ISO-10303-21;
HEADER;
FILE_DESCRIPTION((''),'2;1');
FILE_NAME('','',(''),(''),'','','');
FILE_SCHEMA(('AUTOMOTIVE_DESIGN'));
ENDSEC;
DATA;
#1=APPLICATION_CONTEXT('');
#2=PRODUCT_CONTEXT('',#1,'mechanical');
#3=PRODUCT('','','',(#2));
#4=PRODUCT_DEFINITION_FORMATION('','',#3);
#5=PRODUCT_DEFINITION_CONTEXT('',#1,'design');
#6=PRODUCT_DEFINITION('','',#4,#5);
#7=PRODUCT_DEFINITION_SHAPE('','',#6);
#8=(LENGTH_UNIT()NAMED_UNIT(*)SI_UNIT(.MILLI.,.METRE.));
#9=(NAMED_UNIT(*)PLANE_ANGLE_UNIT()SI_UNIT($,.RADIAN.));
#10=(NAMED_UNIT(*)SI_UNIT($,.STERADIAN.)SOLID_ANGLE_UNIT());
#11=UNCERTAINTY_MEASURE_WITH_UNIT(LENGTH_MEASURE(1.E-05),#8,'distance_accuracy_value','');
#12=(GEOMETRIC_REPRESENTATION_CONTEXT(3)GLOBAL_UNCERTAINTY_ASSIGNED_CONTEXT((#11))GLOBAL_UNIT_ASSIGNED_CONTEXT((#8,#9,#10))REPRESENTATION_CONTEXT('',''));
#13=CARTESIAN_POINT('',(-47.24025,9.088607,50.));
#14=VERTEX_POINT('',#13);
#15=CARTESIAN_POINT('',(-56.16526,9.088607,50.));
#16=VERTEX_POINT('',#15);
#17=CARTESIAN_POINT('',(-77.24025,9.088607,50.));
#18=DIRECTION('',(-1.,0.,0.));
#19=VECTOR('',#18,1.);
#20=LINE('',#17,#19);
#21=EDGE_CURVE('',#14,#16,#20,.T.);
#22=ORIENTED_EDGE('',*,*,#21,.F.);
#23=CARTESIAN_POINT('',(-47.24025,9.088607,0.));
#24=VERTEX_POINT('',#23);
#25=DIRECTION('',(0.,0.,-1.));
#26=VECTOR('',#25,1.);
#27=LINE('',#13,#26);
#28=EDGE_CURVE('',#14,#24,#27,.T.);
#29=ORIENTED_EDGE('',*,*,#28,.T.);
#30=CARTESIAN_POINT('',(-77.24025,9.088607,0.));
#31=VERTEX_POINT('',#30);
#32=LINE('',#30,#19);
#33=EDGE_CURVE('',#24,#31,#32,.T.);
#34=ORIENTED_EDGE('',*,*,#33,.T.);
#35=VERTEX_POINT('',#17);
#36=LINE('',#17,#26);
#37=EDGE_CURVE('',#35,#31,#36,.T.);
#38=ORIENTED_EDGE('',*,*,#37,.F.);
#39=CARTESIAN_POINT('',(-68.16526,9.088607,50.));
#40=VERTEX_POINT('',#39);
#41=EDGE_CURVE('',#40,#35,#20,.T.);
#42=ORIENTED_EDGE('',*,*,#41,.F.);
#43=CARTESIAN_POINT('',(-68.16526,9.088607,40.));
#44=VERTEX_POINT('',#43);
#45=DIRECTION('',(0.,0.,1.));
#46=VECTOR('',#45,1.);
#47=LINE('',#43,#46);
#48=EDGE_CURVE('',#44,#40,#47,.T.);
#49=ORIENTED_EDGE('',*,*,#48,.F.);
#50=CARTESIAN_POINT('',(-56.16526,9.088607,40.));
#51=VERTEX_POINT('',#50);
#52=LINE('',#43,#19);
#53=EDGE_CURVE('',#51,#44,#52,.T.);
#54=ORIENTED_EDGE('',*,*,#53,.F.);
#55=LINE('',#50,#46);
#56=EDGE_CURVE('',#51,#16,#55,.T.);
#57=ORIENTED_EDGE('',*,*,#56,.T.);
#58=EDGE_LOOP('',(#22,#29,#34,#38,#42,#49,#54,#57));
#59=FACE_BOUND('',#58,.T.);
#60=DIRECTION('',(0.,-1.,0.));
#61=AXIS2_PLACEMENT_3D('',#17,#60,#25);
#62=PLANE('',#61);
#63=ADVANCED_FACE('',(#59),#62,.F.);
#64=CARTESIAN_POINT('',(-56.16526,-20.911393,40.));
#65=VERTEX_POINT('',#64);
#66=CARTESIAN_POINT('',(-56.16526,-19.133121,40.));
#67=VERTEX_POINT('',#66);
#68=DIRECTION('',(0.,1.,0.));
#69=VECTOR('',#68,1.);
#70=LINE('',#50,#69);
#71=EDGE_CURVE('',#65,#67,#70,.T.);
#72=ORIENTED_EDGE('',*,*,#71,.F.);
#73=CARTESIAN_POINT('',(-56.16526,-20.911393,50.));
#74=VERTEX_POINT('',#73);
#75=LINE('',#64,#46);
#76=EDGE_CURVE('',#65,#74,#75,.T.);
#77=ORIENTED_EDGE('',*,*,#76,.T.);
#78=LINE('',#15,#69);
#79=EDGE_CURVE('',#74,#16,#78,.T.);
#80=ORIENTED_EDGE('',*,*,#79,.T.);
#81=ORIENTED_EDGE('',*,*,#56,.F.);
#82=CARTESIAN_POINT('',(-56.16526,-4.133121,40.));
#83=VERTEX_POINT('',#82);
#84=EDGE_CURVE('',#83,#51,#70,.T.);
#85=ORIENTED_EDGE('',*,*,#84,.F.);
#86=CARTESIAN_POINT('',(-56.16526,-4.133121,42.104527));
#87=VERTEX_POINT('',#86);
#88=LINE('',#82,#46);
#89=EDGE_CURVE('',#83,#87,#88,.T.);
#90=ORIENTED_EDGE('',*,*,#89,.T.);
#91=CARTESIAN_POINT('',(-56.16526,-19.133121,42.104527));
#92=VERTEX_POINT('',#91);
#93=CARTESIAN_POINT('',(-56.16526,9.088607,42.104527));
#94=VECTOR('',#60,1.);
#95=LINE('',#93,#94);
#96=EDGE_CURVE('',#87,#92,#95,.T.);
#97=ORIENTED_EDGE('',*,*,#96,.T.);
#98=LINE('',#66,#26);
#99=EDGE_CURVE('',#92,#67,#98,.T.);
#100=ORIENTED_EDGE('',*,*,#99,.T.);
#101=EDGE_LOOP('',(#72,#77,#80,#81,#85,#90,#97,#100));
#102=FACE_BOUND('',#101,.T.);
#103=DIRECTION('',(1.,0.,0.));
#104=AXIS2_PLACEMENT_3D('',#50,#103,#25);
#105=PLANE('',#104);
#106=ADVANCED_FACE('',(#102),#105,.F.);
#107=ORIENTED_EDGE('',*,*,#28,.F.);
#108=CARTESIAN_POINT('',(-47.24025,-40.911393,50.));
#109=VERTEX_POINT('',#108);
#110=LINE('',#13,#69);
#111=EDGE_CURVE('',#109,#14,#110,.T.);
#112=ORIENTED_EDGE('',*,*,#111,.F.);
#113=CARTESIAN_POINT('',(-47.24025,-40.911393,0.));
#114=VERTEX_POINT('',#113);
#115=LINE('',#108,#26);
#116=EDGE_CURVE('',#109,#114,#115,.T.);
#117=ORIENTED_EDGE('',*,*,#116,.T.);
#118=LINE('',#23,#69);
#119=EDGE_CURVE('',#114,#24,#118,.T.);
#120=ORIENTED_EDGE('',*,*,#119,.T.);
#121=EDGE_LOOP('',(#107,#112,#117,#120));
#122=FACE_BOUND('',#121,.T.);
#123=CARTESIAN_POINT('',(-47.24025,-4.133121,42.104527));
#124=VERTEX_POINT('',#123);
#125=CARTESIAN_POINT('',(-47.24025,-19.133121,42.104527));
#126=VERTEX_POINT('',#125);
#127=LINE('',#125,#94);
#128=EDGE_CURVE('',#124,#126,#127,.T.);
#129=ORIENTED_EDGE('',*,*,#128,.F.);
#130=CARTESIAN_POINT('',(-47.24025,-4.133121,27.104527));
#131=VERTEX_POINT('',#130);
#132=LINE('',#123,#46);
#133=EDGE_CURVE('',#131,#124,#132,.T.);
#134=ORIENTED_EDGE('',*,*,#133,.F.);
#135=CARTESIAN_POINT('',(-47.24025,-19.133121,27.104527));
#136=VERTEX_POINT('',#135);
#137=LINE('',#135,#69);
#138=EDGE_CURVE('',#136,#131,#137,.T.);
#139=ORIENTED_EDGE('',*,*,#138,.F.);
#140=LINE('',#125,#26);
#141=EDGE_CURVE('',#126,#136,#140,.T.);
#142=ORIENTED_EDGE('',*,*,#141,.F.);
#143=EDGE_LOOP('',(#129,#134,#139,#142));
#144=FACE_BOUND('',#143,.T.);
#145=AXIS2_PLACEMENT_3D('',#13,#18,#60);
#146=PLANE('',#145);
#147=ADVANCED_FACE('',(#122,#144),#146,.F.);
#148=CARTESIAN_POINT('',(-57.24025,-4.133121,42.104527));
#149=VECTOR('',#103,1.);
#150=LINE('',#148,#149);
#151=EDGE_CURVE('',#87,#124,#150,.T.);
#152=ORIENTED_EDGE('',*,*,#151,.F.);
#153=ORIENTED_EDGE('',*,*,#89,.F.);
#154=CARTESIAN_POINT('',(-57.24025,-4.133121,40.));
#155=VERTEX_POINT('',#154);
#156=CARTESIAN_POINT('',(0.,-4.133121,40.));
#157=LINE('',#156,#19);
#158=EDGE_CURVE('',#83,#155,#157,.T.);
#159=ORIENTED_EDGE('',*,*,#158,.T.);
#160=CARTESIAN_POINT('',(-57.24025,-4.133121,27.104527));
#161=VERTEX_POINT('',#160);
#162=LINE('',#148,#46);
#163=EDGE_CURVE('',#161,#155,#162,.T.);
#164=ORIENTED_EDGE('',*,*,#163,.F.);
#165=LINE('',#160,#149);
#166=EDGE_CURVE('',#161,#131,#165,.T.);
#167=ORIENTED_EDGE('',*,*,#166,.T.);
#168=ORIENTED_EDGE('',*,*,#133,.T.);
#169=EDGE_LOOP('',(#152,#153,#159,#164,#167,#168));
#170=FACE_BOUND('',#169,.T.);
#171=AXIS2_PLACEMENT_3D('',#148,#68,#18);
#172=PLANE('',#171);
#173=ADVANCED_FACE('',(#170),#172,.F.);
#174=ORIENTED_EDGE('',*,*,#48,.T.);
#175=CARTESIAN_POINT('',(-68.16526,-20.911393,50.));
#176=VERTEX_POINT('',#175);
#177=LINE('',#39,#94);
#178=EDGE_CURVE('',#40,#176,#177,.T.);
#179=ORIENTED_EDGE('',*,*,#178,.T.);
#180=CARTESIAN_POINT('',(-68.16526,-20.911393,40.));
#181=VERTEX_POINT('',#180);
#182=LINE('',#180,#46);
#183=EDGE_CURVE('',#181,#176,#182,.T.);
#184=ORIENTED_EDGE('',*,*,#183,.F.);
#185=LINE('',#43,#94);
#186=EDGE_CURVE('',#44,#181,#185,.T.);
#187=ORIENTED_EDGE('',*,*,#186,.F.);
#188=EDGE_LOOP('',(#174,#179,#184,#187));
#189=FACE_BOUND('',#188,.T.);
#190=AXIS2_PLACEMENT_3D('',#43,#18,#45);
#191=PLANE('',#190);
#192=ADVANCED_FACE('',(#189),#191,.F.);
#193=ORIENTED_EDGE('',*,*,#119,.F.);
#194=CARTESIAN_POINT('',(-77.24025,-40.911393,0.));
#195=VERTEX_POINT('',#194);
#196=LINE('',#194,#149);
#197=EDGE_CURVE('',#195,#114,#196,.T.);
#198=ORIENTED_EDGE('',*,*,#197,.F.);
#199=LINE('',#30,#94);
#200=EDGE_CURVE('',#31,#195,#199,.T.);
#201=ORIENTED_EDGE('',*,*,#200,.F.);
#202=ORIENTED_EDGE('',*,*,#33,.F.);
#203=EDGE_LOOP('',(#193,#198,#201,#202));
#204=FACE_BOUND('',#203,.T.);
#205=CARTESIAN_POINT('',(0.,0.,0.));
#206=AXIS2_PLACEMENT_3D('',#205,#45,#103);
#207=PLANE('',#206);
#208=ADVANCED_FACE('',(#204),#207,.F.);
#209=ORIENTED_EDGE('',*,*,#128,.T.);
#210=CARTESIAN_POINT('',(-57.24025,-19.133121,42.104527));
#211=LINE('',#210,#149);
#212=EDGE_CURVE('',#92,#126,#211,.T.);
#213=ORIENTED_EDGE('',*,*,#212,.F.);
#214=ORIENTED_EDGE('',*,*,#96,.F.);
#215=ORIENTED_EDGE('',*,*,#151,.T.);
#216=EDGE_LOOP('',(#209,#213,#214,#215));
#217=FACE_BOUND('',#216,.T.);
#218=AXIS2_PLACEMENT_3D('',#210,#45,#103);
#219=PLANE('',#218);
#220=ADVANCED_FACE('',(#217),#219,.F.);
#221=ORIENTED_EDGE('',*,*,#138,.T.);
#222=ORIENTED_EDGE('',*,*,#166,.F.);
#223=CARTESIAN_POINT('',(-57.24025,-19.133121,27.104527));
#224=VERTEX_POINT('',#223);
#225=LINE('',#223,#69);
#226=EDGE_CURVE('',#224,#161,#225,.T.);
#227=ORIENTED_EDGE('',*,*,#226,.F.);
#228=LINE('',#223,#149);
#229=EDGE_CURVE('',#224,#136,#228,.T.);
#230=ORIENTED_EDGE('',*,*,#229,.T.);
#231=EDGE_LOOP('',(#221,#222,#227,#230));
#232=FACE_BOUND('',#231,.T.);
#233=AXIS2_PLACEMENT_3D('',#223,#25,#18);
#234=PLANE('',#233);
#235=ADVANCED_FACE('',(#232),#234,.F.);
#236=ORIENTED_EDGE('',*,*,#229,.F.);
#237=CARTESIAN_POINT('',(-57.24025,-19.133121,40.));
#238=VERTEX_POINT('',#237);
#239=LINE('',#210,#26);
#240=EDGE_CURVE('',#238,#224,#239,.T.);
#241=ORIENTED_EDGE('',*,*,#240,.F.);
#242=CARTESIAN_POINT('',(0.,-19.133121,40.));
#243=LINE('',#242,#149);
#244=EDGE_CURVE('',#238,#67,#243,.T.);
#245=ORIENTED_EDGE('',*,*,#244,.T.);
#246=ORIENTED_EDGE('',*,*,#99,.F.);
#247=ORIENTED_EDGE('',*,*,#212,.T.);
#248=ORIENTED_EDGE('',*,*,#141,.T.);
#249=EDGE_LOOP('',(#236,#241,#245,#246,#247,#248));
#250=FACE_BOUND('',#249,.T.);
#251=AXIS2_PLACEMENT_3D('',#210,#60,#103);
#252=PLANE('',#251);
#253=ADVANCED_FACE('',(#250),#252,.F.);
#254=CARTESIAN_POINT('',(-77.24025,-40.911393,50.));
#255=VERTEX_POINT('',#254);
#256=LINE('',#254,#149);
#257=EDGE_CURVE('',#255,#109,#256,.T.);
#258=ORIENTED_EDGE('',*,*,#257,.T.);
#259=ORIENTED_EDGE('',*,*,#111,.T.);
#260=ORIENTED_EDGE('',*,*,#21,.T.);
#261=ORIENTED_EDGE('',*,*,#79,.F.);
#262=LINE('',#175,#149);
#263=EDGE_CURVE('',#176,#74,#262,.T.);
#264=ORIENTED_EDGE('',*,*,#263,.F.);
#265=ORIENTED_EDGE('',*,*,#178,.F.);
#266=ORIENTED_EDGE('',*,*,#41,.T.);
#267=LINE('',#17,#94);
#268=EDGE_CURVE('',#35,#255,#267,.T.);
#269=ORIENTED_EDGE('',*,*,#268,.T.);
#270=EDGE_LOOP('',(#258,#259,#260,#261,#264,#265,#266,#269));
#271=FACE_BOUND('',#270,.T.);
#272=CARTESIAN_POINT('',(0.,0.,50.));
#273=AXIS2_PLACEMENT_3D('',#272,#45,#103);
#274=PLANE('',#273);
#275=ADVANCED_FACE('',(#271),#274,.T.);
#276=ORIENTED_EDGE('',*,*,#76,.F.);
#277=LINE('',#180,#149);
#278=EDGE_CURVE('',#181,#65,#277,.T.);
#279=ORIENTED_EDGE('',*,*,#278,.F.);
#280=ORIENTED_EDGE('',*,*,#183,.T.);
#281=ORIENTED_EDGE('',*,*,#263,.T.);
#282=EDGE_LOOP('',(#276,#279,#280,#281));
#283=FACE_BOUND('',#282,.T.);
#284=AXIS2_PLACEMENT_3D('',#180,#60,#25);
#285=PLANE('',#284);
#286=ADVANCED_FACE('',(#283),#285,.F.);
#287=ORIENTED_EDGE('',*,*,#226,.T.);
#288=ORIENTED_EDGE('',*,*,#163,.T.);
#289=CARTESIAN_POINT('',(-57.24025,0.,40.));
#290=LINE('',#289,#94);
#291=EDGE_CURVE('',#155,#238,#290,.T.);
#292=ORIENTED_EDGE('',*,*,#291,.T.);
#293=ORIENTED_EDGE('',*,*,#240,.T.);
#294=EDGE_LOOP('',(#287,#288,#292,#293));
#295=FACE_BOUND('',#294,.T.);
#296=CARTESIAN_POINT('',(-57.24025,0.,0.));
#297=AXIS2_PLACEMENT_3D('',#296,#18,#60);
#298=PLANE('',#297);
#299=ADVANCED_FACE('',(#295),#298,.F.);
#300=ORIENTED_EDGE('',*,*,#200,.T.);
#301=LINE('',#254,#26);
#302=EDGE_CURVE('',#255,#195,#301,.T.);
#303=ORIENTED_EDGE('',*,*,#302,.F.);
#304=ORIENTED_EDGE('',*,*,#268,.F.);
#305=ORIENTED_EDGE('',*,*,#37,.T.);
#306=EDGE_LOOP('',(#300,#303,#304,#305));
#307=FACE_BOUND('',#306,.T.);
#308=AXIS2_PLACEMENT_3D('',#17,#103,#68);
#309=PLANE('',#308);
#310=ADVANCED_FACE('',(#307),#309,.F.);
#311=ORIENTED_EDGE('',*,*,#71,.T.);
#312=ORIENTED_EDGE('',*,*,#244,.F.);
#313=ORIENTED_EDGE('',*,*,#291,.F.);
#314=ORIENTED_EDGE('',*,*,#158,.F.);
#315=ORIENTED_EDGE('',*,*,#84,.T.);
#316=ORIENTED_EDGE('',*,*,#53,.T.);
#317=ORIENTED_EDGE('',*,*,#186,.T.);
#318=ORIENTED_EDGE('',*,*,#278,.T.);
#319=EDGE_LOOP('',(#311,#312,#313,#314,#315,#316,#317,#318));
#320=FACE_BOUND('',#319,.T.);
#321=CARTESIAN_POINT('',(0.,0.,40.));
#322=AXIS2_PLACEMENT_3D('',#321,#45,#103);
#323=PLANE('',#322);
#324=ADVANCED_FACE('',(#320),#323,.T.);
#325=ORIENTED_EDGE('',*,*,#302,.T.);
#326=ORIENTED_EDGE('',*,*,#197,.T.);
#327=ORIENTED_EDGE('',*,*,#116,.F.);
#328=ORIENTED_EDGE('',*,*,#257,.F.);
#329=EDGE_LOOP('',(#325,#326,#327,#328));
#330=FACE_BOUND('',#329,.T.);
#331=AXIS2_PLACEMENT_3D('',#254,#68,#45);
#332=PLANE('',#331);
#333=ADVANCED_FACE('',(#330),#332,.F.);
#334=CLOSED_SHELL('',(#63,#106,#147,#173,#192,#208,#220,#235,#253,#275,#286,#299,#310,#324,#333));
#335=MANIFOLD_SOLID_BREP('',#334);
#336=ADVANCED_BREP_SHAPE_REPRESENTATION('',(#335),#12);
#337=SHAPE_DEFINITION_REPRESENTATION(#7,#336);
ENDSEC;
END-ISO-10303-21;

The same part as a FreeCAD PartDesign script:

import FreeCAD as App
import Part
import Sketcher
Q = App.Units.Quantity

doc = App.newDocument("Part")
params = doc.addObject("Spreadsheet::Sheet", "Params")
for row, (alias, value) in enumerate([
    ("sketch1_width", "30 mm"),
    ("sketch1_height", "50 mm"),
    ("pad1_length", "50 mm"),
    ("sketch2_width", "12 mm"),
    ("sketch2_height", "30 mm"),
    ("pocket1_length", "10 mm"),
    ("sketch3_width", "15 mm"),
    ("pocket2_length", "10 mm"),
], start=1):
    params.set(f"A{row}", alias)
    params.set(f"B{row}", "=" + value)
    params.setAlias(f"B{row}", alias)

body = doc.addObject("PartDesign::Body", "Body")

# Sketch on XY plane
sketch1 = body.newObject("Sketcher::SketchObject", "Sketch")
sketch1.AttachmentSupport = (doc.getObject("XY_Plane"), [""])
sketch1.MapMode = "FlatFace"
sketch1.addGeometry([
    Part.LineSegment(App.Vector(-77.24025, 9.088607, 0), App.Vector(-77.24025, -40.911393, 0)),
    Part.LineSegment(App.Vector(-77.24025, -40.911393, 0), App.Vector(-47.24025, -40.911393, 0)),
    Part.LineSegment(App.Vector(-47.24025, -40.911393, 0), App.Vector(-47.24025, 9.088607, 0)),
    Part.LineSegment(App.Vector(-47.24025, 9.088607, 0), App.Vector(-77.24025, 9.088607, 0)),
], False)
sketch1.addConstraint([
    Sketcher.Constraint("Coincident", 0, 2, 1, 1),
    Sketcher.Constraint("Coincident", 1, 2, 2, 1),
    Sketcher.Constraint("Coincident", 2, 2, 3, 1),
    Sketcher.Constraint("Coincident", 3, 2, 0, 1),
    Sketcher.Constraint("Vertical", 0),
    Sketcher.Constraint("Horizontal", 1),
    Sketcher.Constraint("Vertical", 2),
    Sketcher.Constraint("Horizontal", 3),
    Sketcher.Constraint("DistanceX", 1, 1, 1, 2, Q("30 mm")),
    Sketcher.Constraint("DistanceY", 0, 2, 0, 1, Q("50 mm")),
    Sketcher.Constraint("DistanceX", 0, 2, -1, 1, Q("77.24025 mm")),
    Sketcher.Constraint("DistanceY", 0, 2, -1, 1, Q("40.911393 mm")),
])
sketch1.setExpression("Constraints[8]", "Params.sketch1_width")
sketch1.setExpression("Constraints[9]", "Params.sketch1_height")
pad1 = body.newObject("PartDesign::Pad", "Pad")
pad1.Profile = sketch1
pad1.setExpression("Length", "Params.pad1_length")

# Sketch on XY plane
sketch2 = body.newObject("Sketcher::SketchObject", "Sketch001")
sketch2.AttachmentSupport = (doc.getObject("XY_Plane"), [""])
sketch2.MapMode = "FlatFace"
sketch2.AttachmentOffset = App.Placement(App.Vector(0, 0, 50), App.Rotation())
sketch2.addGeometry([
    Part.LineSegment(App.Vector(-68.16526, 9.088607, 0), App.Vector(-68.16526, -20.911393, 0)),
    Part.LineSegment(App.Vector(-68.16526, -20.911393, 0), App.Vector(-56.16526, -20.911393, 0)),
    Part.LineSegment(App.Vector(-56.16526, -20.911393, 0), App.Vector(-56.16526, 9.088607, 0)),
    Part.LineSegment(App.Vector(-56.16526, 9.088607, 0), App.Vector(-68.16526, 9.088607, 0)),
], False)
sketch2.addConstraint([
    Sketcher.Constraint("Coincident", 0, 2, 1, 1),
    Sketcher.Constraint("Coincident", 1, 2, 2, 1),
    Sketcher.Constraint("Coincident", 2, 2, 3, 1),
    Sketcher.Constraint("Coincident", 3, 2, 0, 1),
    Sketcher.Constraint("Vertical", 0),
    Sketcher.Constraint("Horizontal", 1),
    Sketcher.Constraint("Vertical", 2),
    Sketcher.Constraint("Horizontal", 3),
    Sketcher.Constraint("DistanceX", 1, 1, 1, 2, Q("12 mm")),
    Sketcher.Constraint("DistanceY", 0, 2, 0, 1, Q("30 mm")),
    Sketcher.Constraint("DistanceX", 0, 2, -1, 1, Q("68.16526 mm")),
    Sketcher.Constraint("DistanceY", 0, 2, -1, 1, Q("20.911393 mm")),
])
sketch2.setExpression("Constraints[8]", "Params.sketch2_width")
sketch2.setExpression("Constraints[9]", "Params.sketch2_height")
pocket1 = body.newObject("PartDesign::Pocket", "Pocket")
pocket1.Profile = sketch2
pocket1.setExpression("Length", "Params.pocket1_length")

# Sketch on YZ plane
sketch3 = body.newObject("Sketcher::SketchObject", "Sketch002")
sketch3.AttachmentSupport = (doc.getObject("YZ_Plane"), [""])
sketch3.MapMode = "FlatFace"
sketch3.AttachmentOffset = App.Placement(App.Vector(0, 0, -47.24025), App.Rotation())
sketch3.addGeometry([
    Part.LineSegment(App.Vector(-4.133121, 42.104527, 0), App.Vector(-19.133121, 42.104527, 0)),
    Part.LineSegment(App.Vector(-19.133121, 42.104527, 0), App.Vector(-19.133121, 27.104527, 0)),
    Part.LineSegment(App.Vector(-19.133121, 27.104527, 0), App.Vector(-4.133121, 27.104527, 0)),
    Part.LineSegment(App.Vector(-4.133121, 27.104527, 0), App.Vector(-4.133121, 42.104527, 0)),
], False)
sketch3.addConstraint([
    Sketcher.Constraint("Coincident", 0, 2, 1, 1),
    Sketcher.Constraint("Coincident", 1, 2, 2, 1),
    Sketcher.Constraint("Coincident", 2, 2, 3, 1),
    Sketcher.Constraint("Coincident", 3, 2, 0, 1),
    Sketcher.Constraint("Horizontal", 0),
    Sketcher.Constraint("Vertical", 1),
    Sketcher.Constraint("Horizontal", 2),
    Sketcher.Constraint("Vertical", 3),
    Sketcher.Constraint("Equal", 2, 1),
    Sketcher.Constraint("DistanceX", 0, 2, 0, 1, Q("15 mm")),
    Sketcher.Constraint("DistanceX", 0, 2, -1, 1, Q("19.133121 mm")),
    Sketcher.Constraint("DistanceY", -1, 1, 0, 2, Q("42.104527 mm")),
])
sketch3.setExpression("Constraints[9]", "Params.sketch3_width")
pocket2 = body.newObject("PartDesign::Pocket", "Pocket001")
pocket2.Profile = sketch3
pocket2.setExpression("Length", "Params.pocket2_length")

doc.recompute()
